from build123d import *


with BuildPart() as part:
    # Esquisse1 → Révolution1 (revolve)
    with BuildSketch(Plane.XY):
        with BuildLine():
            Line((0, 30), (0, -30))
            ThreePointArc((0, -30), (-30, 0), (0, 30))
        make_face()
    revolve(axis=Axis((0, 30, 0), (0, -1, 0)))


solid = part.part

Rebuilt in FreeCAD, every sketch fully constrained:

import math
import FreeCAD as App
import Part
import Sketcher

V = App.Vector

doc = App.newDocument("Part")
params = doc.addObject("Spreadsheet::Sheet", "Params")
for row, (alias, value) in enumerate([
    ("sketch1_radius", "30 mm"),
    ("revolution_angle", "360 deg"),
], start=1):
    params.set(f"A{row}", alias)
    params.set(f"B{row}", "=" + value)
    params.setAlias(f"B{row}", alias)

body = doc.addObject("PartDesign::Body", "Body")

# Sketch on XY plane
sketch1 = body.newObject("Sketcher::SketchObject", "Sketch")
sketch1.AttachmentSupport = (doc.getObject("XY_Plane"), [""])
sketch1.MapMode = "FlatFace"
sketch1.addGeometry([
    Part.LineSegment(V(0, -30, 0), V(0, 30, 0)),
    Part.ArcOfCircle(Part.Circle(V(0, 0, 0), V(0, 0, 1), 30), math.radians(90), math.radians(270)),
], False)
sketch1.addConstraint([
    Sketcher.Constraint("Coincident", 0, 1, 1, 2),
    Sketcher.Constraint("Coincident", 1, 1, 0, 2),
    Sketcher.Constraint("Vertical", 0),
    Sketcher.Constraint("Coincident", 1, 3, -1, 1),
    Sketcher.Constraint("PointOnObject", 0, 1, -2),
    Sketcher.Constraint("Radius", 1, 30.0),
])
sketch1.setExpression("Constraints[5]", "Params.sketch1_radius")
revolution = body.newObject("PartDesign::Revolution", "Revolution")
revolution.Profile = sketch1
revolution.ReferenceAxis = (sketch1, ["V_Axis"])
revolution.setExpression("Angle", "Params.revolution_angle")

doc.recompute()
